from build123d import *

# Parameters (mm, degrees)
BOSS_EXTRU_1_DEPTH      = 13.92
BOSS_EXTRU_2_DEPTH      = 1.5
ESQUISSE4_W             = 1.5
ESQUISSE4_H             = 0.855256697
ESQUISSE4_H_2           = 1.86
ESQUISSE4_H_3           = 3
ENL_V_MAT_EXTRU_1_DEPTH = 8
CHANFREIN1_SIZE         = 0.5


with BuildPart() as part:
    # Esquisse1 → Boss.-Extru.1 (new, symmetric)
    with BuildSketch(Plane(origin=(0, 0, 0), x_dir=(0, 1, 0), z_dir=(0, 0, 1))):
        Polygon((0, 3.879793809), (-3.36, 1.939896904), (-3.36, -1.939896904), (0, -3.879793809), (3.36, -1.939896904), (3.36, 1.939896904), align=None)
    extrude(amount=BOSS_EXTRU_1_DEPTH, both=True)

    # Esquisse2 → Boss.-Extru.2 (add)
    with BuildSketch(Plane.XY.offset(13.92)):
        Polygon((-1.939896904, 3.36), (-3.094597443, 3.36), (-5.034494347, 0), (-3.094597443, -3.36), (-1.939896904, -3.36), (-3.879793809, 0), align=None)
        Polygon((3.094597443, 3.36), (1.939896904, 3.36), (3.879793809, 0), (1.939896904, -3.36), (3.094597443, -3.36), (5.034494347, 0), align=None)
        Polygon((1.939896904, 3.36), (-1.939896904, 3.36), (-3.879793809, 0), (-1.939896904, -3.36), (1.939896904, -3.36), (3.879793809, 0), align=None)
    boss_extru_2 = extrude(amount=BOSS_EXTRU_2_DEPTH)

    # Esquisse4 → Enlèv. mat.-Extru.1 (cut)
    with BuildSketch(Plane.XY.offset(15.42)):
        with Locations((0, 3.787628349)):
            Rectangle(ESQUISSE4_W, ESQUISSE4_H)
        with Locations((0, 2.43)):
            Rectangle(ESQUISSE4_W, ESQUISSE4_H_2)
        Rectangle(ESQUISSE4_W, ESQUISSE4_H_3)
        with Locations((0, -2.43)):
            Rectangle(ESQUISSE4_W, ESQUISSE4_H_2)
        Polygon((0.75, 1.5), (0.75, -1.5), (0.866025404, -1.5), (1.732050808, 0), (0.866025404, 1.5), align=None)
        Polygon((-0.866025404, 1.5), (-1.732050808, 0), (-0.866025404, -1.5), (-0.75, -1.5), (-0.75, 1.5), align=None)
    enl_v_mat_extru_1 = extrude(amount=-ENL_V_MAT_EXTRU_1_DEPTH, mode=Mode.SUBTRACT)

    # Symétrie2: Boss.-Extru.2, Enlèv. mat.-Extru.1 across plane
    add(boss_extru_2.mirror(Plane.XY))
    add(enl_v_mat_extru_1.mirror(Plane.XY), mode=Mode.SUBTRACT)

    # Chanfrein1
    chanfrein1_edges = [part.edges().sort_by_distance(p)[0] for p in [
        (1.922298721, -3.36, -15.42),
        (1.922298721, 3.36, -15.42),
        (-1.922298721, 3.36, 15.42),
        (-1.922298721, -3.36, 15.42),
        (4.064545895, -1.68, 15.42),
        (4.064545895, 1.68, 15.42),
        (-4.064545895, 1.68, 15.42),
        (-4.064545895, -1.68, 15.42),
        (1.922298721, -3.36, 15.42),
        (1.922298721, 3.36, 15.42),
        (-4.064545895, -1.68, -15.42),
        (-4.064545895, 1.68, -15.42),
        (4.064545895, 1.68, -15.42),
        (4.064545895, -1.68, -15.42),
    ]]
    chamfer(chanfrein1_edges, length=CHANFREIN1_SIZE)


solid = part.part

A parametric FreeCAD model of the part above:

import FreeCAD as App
import Part
import Sketcher
Q = App.Units.Quantity


def edges_at(feature, points):
    """Names of the edges that pass closest to the given points."""
    edges = feature.Shape.Edges
    near = lambda p: min(range(len(edges)), key=lambda i: edges[i].distToShape(Part.Vertex(*p))[0])
    return sorted({f"Edge{near(p) + 1}" for p in points})


def add_polygon(sketch, points):
    """Adds a closed chain of lines whose ends are joined by coincident constraints."""
    first, n = sketch.GeometryCount, len(points)
    for a, b in zip(points, points[1:] + points[:1]):
        sketch.addGeometry(Part.LineSegment(App.Vector(*a, 0), App.Vector(*b, 0)), False)
    for i in range(n):
        sketch.addConstraint(Sketcher.Constraint("Coincident", first + i, 2, first + (i + 1) % n, 1))

doc = App.newDocument("Part")
body = doc.addObject("PartDesign::Body", "Body")

sketch1 = doc.addObject("Sketcher::SketchObject", "Sketch")
body.addObject(sketch1)
sketch1.AttachmentSupport = (doc.XY_Plane, [""])
sketch1.MapMode = "FlatFace"
add_polygon(sketch1, [(-3.9, 0), (-1.9, -3.4), (1.9, -3.4), (3.9, 0), (1.9, 3.4), (-1.9, 3.4)])
sketch1.addConstraint([
    Sketcher.Constraint("Horizontal", 1),
    Sketcher.Constraint("Horizontal", 4),
    Sketcher.Constraint("Symmetric", 0, 2, 3, 2, -1, 1),
    Sketcher.Constraint("Symmetric", 2, 2, 5, 2, -1, 1),
    Sketcher.Constraint("PointOnObject", 2, 2, -1),
    Sketcher.Constraint("Parallel", 2, 5),
    Sketcher.Constraint("Vertical", 1, 2, 3, 2),
    Sketcher.Constraint("Angle", 0, Q("-60 deg")),
    Sketcher.Constraint("DistanceY", 0, 2, -1, 1, 3.36),
    Sketcher.Constraint("DistanceX", 1, 1, 1, 2, 3.879794),
])
pad1 = doc.addObject("PartDesign::Pad", "Pad")
body.addObject(pad1)
pad1.Profile = sketch1
pad1.Length = 27.84
pad1.Midplane = True

sketch2 = doc.addObject("Sketcher::SketchObject", "Sketch001")
body.addObject(sketch2)
sketch2.AttachmentSupport = (doc.XY_Plane, [""])
sketch2.MapMode = "FlatFace"
sketch2.AttachmentOffset = App.Placement(App.Vector(0, 0, 13.92), App.Rotation())
add_polygon(sketch2, [(-3.1, 3.4), (-5, 0), (-3.1, -3.4), (3.1, -3.4), (5, 0), (3.1, 3.4)])
sketch2.addConstraint([
    Sketcher.Constraint("Horizontal", 2),
    Sketcher.Constraint("Horizontal", 5),
    Sketcher.Constraint("Symmetric", 0, 2, 3, 2, -1, 1),
    Sketcher.Constraint("Symmetric", 1, 2, 4, 2, -1, 1),
    Sketcher.Constraint("PointOnObject", 0, 2, -1),
    Sketcher.Constraint("Parallel", 0, 3),
    Sketcher.Constraint("Vertical", 2, 2, 4, 2),
    Sketcher.Constraint("Angle", 0, Q("-120 deg")),
    Sketcher.Constraint("DistanceY", 1, 2, -1, 1, 3.36),
    Sketcher.Constraint("DistanceX", 2, 1, 2, 2, 6.189195),
])
pad2 = doc.addObject("PartDesign::Pad", "Pad001")
body.addObject(pad2)
pad2.Profile = sketch2
pad2.Length = 1.5

sketch3 = doc.addObject("Sketcher::SketchObject", "Sketch002")
body.addObject(sketch3)
sketch3.AttachmentSupport = (doc.XY_Plane, [""])
sketch3.MapMode = "FlatFace"
sketch3.AttachmentOffset = App.Placement(App.Vector(0, 0, 15.42), App.Rotation())
add_polygon(sketch3, [(-0.75, 4.22), (-0.75, 1.5), (-0.87, 1.5), (-1.73, 0), (-0.87, -1.5), (-0.75, -1.5), (-0.75, -3.36), (0.75, -3.36), (0.75, -1.5), (0.87, -1.5), (1.73, 0), (0.87, 1.5), (0.75, 1.5), (0.75, 4.22)])
sketch3.addConstraint([
    Sketcher.Constraint("Vertical", 0),
    Sketcher.Constraint("Horizontal", 1),
    Sketcher.Constraint("Horizontal", 4),
    Sketcher.Constraint("Vertical", 5),
    Sketcher.Constraint("Horizontal", 6),
    Sketcher.Constraint("Vertical", 7),
    Sketcher.Constraint("Horizontal", 8),
    Sketcher.Constraint("Horizontal", 11),
    Sketcher.Constraint("Vertical", 12),
    Sketcher.Constraint("Horizontal", 13),
    Sketcher.Constraint("Symmetric", 0, 2, 7, 2, -1, 1),
    Sketcher.Constraint("Symmetric", 2, 2, 9, 2, -1, 1),
    Sketcher.Constraint("Symmetric", 3, 2, 10, 2, -1, 1),
    Sketcher.Constraint("Symmetric", 4, 2, 7, 2, -2),
    Sketcher.Constraint("PointOnObject", 2, 2, -1),
    Sketcher.Constraint("Parallel", 2, 9),
    Sketcher.Constraint("Vertical", 1, 2, 3, 2),
    Sketcher.Constraint("Vertical", 7, 2, 11, 2),
    Sketcher.Constraint("Angle", 2, Q("-120 deg")),
    Sketcher.Constraint("DistanceX", 6, 1, 6, 2, 1.5),
    Sketcher.Constraint("DistanceY", 3, 2, 1, 2, 3.0),
    Sketcher.Constraint("DistanceY", 5, 2, 5, 1, 1.86),
    Sketcher.Constraint("DistanceX", 1, 2, 1, 1, 0.116025),
    Sketcher.Constraint("DistanceY", 0, 2, 0, 1, 2.715257),
])
pocket1 = doc.addObject("PartDesign::Pocket", "Pocket")
body.addObject(pocket1)
pocket1.Profile = sketch3
pocket1.Length = 8
doc.recompute()

mirrored = doc.addObject("PartDesign::Mirrored", "Mirrored")
body.addObject(mirrored)
mirrored.Originals = [pad2, pocket1]
mirrored.MirrorPlane = (doc.XY_Plane, [""])
body.Tip = mirrored
doc.recompute()

chamfer = doc.addObject("PartDesign::Chamfer", "Chamfer")
body.addObject(chamfer)
chamfer.Base = (mirrored, edges_at(mirrored, [
    (1.922, -3.36, -15.42),
    (1.922, 3.36, -15.42),
    (-1.922, 3.36, 15.42),
    (-1.922, -3.36, 15.42),
    (4.065, -1.68, 15.42),
    (4.065, 1.68, 15.42),
    (-4.065, 1.68, 15.42),
    (-4.065, -1.68, 15.42),
    (1.922, -3.36, 15.42),
    (1.922, 3.36, 15.42),
    (-4.065, -1.68, -15.42),
    (-4.065, 1.68, -15.42),
    (4.065, 1.68, -15.42),
    (4.065, -1.68, -15.42),
]))
chamfer.Size = 0.5

doc.recompute()
